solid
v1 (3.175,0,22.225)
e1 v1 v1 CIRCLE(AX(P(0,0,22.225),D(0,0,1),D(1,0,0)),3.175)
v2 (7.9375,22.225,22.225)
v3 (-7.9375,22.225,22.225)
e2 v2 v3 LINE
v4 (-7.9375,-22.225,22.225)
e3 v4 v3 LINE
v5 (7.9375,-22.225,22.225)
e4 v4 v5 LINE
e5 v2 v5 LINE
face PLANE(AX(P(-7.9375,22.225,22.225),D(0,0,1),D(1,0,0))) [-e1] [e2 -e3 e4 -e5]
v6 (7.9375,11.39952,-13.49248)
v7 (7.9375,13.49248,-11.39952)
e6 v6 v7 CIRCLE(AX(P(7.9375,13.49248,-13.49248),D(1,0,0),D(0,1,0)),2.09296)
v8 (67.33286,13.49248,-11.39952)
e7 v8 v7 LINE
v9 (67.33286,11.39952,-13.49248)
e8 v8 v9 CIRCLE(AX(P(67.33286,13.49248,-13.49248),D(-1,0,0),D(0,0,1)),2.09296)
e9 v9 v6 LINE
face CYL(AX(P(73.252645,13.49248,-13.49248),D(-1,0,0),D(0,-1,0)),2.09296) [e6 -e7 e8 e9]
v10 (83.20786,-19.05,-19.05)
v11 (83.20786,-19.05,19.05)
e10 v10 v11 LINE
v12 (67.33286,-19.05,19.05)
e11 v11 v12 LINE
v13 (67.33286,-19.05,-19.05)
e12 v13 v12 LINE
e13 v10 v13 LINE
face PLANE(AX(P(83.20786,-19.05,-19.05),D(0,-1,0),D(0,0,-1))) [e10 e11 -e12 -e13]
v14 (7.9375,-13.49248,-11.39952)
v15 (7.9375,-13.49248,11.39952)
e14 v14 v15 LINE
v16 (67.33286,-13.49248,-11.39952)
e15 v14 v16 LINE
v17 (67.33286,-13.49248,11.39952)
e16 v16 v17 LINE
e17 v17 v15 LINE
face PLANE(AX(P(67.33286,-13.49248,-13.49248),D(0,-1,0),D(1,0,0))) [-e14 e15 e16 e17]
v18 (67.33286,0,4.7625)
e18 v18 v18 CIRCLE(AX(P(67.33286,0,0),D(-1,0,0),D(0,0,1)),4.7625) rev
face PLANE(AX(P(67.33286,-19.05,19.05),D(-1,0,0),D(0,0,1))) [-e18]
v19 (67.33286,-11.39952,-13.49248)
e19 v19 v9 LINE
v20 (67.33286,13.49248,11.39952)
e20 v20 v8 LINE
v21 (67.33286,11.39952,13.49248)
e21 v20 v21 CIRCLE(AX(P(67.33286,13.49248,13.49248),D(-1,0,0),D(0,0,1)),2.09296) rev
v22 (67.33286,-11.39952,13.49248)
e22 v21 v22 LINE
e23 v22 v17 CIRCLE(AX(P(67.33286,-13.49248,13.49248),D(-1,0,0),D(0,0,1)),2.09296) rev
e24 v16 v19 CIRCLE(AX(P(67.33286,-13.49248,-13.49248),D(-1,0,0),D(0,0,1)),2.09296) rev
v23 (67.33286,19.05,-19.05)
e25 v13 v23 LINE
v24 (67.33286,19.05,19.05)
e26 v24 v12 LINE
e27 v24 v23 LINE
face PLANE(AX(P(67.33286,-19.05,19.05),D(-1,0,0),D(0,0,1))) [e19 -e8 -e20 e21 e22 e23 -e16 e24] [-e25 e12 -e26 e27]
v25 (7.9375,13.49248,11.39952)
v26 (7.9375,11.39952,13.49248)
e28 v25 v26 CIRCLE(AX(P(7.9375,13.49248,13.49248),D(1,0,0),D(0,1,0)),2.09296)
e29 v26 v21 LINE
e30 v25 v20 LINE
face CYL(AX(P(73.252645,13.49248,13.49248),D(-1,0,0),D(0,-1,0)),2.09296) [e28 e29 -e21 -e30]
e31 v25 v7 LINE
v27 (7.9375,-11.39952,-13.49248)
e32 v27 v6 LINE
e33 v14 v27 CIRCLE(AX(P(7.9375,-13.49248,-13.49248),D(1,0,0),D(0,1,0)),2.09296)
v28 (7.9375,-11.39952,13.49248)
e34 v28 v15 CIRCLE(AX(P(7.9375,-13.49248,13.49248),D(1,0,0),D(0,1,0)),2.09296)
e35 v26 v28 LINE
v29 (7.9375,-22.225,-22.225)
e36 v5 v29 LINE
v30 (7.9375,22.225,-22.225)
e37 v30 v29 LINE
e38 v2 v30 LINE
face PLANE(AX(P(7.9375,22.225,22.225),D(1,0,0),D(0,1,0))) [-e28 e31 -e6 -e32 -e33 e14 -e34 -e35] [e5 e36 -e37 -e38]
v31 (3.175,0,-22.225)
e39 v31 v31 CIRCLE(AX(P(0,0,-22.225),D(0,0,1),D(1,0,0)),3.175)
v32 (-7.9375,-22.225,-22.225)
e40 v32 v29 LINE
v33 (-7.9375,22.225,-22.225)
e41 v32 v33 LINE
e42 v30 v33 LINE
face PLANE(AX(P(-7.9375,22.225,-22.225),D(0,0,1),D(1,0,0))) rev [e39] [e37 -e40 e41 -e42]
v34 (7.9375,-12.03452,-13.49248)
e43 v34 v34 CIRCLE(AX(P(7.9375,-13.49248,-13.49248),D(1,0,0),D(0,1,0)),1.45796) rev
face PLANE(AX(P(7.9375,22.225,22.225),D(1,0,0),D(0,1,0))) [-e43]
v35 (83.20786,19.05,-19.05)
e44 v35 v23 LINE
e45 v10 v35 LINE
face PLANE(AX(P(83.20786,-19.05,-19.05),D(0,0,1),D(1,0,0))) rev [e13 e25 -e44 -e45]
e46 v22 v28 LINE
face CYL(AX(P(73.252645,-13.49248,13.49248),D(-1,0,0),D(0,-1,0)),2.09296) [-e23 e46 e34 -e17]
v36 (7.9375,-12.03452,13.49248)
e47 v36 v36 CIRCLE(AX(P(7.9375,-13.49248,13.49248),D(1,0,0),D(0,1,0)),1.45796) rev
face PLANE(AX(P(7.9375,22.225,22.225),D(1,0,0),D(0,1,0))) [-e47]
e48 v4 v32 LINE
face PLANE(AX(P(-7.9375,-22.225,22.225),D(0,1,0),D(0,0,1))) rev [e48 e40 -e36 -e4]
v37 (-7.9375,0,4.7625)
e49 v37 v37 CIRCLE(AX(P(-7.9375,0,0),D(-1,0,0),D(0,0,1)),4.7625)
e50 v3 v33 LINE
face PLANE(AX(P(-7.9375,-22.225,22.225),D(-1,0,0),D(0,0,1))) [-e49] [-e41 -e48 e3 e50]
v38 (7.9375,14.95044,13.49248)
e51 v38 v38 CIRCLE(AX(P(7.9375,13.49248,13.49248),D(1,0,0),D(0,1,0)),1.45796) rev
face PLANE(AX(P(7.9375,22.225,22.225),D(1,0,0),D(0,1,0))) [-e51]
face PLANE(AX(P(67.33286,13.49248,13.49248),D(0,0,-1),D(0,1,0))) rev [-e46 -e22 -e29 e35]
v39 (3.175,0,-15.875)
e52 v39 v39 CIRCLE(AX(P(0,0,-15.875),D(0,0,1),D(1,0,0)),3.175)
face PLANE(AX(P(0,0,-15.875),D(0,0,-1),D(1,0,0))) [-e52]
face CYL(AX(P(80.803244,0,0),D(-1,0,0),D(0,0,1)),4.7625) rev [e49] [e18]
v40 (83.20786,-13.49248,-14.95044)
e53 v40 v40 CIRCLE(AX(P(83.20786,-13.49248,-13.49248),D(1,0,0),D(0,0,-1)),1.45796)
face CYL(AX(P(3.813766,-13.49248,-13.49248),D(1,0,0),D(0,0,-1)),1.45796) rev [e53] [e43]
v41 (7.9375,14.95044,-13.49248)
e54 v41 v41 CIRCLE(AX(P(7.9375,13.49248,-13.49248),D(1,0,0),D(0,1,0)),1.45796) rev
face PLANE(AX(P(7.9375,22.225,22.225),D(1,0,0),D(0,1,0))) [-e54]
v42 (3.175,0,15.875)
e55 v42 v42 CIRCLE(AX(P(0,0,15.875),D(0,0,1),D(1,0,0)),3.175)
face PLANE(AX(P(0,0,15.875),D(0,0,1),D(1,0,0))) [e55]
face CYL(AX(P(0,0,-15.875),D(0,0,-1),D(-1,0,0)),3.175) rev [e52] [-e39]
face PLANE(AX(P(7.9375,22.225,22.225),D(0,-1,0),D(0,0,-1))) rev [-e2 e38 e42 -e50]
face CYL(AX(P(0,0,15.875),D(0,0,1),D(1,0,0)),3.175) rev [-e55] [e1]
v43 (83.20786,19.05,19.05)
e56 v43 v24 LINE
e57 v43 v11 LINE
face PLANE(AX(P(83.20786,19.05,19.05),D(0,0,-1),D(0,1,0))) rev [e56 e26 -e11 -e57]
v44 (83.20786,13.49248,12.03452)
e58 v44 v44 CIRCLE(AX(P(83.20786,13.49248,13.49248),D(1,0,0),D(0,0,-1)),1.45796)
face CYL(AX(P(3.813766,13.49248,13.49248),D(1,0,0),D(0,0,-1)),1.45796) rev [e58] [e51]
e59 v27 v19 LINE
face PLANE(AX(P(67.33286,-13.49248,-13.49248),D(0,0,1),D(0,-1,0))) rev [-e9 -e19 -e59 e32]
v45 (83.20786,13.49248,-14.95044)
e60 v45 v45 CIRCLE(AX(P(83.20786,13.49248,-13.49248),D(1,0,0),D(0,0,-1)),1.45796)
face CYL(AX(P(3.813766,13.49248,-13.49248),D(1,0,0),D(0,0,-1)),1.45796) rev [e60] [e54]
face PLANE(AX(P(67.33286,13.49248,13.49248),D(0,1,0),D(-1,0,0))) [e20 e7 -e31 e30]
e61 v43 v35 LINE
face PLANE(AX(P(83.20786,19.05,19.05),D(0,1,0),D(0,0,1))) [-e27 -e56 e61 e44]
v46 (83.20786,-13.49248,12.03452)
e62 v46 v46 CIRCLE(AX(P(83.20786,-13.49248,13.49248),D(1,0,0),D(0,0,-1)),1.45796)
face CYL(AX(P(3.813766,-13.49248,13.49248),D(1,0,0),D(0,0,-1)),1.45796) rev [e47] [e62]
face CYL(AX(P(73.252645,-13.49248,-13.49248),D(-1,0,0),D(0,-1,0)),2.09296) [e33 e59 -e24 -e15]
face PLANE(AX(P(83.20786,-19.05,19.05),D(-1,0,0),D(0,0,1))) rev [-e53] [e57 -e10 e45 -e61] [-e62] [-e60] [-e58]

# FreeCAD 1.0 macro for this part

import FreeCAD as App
import Part
import Sketcher
Q = App.Units.Quantity


def add_polygon(sketch, points):
    """Adds a closed chain of lines whose ends are joined by coincident constraints."""
    first, n = sketch.GeometryCount, len(points)
    for a, b in zip(points, points[1:] + points[:1]):
        sketch.addGeometry(Part.LineSegment(App.Vector(*a, 0), App.Vector(*b, 0)), False)
    for i in range(n):
        sketch.addConstraint(Sketcher.Constraint("Coincident", first + i, 2, first + (i + 1) % n, 1))

doc = App.newDocument("Part")
params = doc.addObject("Spreadsheet::Sheet", "Params")
for row, (alias, value) in enumerate([
    ("sketch1_height", "1.75 in"),
    ("sketch1_width", "0.625 in"),
    ("pad1_length", "1.75 in"),
    ("pad2_length", "2.3384 in"),
    ("sketch3_width", "1.5 in"),
    ("pad3_length", "0.625 in"),
    ("pad4_length", "2.3384 in"),
    ("pocket1_length", "2.9634 in"),
    ("sketch6_diameter", "0.375 in"),
    ("pocket2_length", "2.9634 in"),
    ("sketch7_diameter", "0.25 in"),
    ("pocket3_length", "0.25 in"),
], start=1):
    params.set(f"A{row}", alias)
    params.set(f"B{row}", "=" + value)
    params.setAlias(f"B{row}", alias)

body = doc.addObject("PartDesign::Body", "Body")

sketch1 = body.newObject("Sketcher::SketchObject", "Sketch")
sketch1.AttachmentSupport = (doc.getObject("XY_Plane"), [""])
sketch1.MapMode = "FlatFace"
add_polygon(sketch1, [(-8, 22), (-8, -22), (8, -22), (8, 22)])
sketch1.addConstraint([
    Sketcher.Constraint("Vertical", 0),
    Sketcher.Constraint("Horizontal", 1),
    Sketcher.Constraint("Vertical", 2),
    Sketcher.Constraint("Horizontal", 3),
    Sketcher.Constraint("Symmetric", 0, 2, 2, 2, -1, 1),
    Sketcher.Constraint("DistanceY", 0, 2, 0, 1, Q("1.75 in")),
    Sketcher.Constraint("DistanceX", 1, 1, 1, 2, Q("0.625 in")),
])
sketch1.setExpression("Constraints[9]", "Params.sketch1_height")
sketch1.setExpression("Constraints[10]", "Params.sketch1_width")
pad1 = body.newObject("PartDesign::Pad", "Pad")
pad1.Profile = sketch1
pad1.setExpression("Length", "Params.pad1_length")
pad1.Midplane = True

sketch2 = body.newObject("Sketcher::SketchObject", "Sketch001")
sketch2.AttachmentSupport = (doc.getObject("YZ_Plane"), [""])
sketch2.MapMode = "FlatFace"
sketch2.AttachmentOffset = App.Placement(App.Vector(0, 0, 0.3125 * 25.4), App.Rotation())
add_polygon(sketch2, [(13, 13), (-13, 13), (-13, -13), (13, -13)])
sketch2.addConstraint([
    Sketcher.Constraint("Horizontal", 0),
    Sketcher.Constraint("Vertical", 1),
    Sketcher.Constraint("Horizontal", 2),
    Sketcher.Constraint("Vertical", 3),
    Sketcher.Constraint("Symmetric", 0, 2, 2, 2, -1, 1),
    Sketcher.Constraint("Equal", 2, 1),
    Sketcher.Constraint("DistanceX", 0, 2, 0, 1, Q("1.0624 in")),
])
pad2 = body.newObject("PartDesign::Pad", "Pad001")
pad2.Profile = sketch2
pad2.setExpression("Length", "Params.pad2_length")

sketch3 = body.newObject("Sketcher::SketchObject", "Sketch002")
sketch3.AttachmentSupport = (doc.getObject("YZ_Plane"), [""])
sketch3.MapMode = "FlatFace"
sketch3.AttachmentOffset = App.Placement(App.Vector(0, 0, 2.6509 * 25.4), App.Rotation())
add_polygon(sketch3, [(19, 19), (-19, 19), (-19, -19), (19, -19)])
sketch3.addConstraint([
    Sketcher.Constraint("Horizontal", 0),
    Sketcher.Constraint("Vertical", 1),
    Sketcher.Constraint("Horizontal", 2),
    Sketcher.Constraint("Vertical", 3),
    Sketcher.Constraint("Symmetric", 0, 2, 2, 2, -1, 1),
    Sketcher.Constraint("Equal", 2, 1),
    Sketcher.Constraint("DistanceX", 0, 2, 0, 1, Q("1.5 in")),
])
sketch3.setExpression("Constraints[10]", "Params.sketch3_width")
pad3 = body.newObject("PartDesign::Pad", "Pad002")
pad3.Profile = sketch3
pad3.setExpression("Length", "Params.pad3_length")

sketch4 = body.newObject("Sketcher::SketchObject", "Sketch003")
sketch4.AttachmentSupport = (doc.getObject("YZ_Plane"), [""])
sketch4.MapMode = "FlatFace"
sketch4.AttachmentOffset = App.Placement(App.Vector(0, 0, 0.3125 * 25.4), App.Rotation())
sketch4.addGeometry([
    Part.Circle(App.Vector(13.5, 13.5, 0), App.Vector(0, 0, 1), 2.1),
    Part.Circle(App.Vector(-13.5, 13.5, 0), App.Vector(0, 0, 1), 2.1),
    Part.Circle(App.Vector(13.5, -13.5, 0), App.Vector(0, 0, 1), 2.1),
    Part.Circle(App.Vector(-13.5, -13.5, 0), App.Vector(0, 0, 1), 2.1),
], False)
sketch4.addConstraint([
    Sketcher.Constraint("Equal", 0, 1),
    Sketcher.Constraint("Equal", 1, 2),
    Sketcher.Constraint("Equal", 2, 3),
    Sketcher.Constraint("Symmetric", 1, 3, 2, 3, -1, 1),
    Sketcher.Constraint("Symmetric", 0, 3, 3, 3, -1, 1),
    Sketcher.Constraint("Symmetric", 0, 3, 1, 3, -2),
    Sketcher.Constraint("Diameter", 0, Q("0.1648 in")),
    Sketcher.Constraint("DistanceX", -1, 1, 0, 3, Q("0.5312 in")),
    Sketcher.Constraint("DistanceY", -1, 1, 0, 3, Q("0.5312 in")),
])
pad4 = body.newObject("PartDesign::Pad", "Pad003")
pad4.Profile = sketch4
pad4.setExpression("Length", "Params.pad4_length")

sketch5 = body.newObject("Sketcher::SketchObject", "Sketch004")
sketch5.AttachmentSupport = (doc.getObject("YZ_Plane"), [""])
sketch5.MapMode = "FlatFace"
sketch5.AttachmentOffset = App.Placement(App.Vector(0, 0, 3.2759 * 25.4), App.Rotation())
sketch5.addGeometry([
    Part.Circle(App.Vector(13.5, 13.5, 0), App.Vector(0, 0, 1), 1.5),
    Part.Circle(App.Vector(-13.5, 13.5, 0), App.Vector(0, 0, 1), 1.5),
    Part.Circle(App.Vector(13.5, -13.5, 0), App.Vector(0, 0, 1), 1.5),
    Part.Circle(App.Vector(-13.5, -13.5, 0), App.Vector(0, 0, 1), 1.5),
], False)
sketch5.addConstraint([
    Sketcher.Constraint("Equal", 0, 1),
    Sketcher.Constraint("Equal", 1, 2),
    Sketcher.Constraint("Equal", 2, 3),
    Sketcher.Constraint("Symmetric", 1, 3, 2, 3, -1, 1),
    Sketcher.Constraint("Symmetric", 0, 3, 3, 3, -1, 1),
    Sketcher.Constraint("Symmetric", 0, 3, 1, 3, -2),
    Sketcher.Constraint("Diameter", 0, Q("0.1148 in")),
    Sketcher.Constraint("DistanceX", -1, 1, 0, 3, Q("0.5312 in")),
    Sketcher.Constraint("DistanceY", -1, 1, 0, 3, Q("0.5312 in")),
])
pocket1 = body.newObject("PartDesign::Pocket", "Pocket")
pocket1.Profile = sketch5
pocket1.setExpression("Length", "Params.pocket1_length")

sketch6 = body.newObject("Sketcher::SketchObject", "Sketch005")
sketch6.AttachmentSupport = (doc.getObject("YZ_Plane"), [""])
sketch6.MapMode = "FlatFace"
sketch6.AttachmentOffset = App.Placement(App.Vector(0, 0, -0.3125 * 25.4), App.Rotation())
sketch6.addGeometry(Part.Circle(App.Vector(0, 0, 0), App.Vector(0, 0, 1), 4.8), False)
sketch6.addConstraint([
    Sketcher.Constraint("Coincident", 0, 3, -1, 1),
    Sketcher.Constraint("Diameter", 0, Q("0.375 in")),
])
sketch6.setExpression("Constraints[1]", "Params.sketch6_diameter")
pocket2 = body.newObject("PartDesign::Pocket", "Pocket001")
pocket2.Profile = sketch6
pocket2.setExpression("Length", "Params.pocket2_length")
pocket2.Reversed = True

sketch7 = body.newObject("Sketcher::SketchObject", "Sketch006")
sketch7.AttachmentSupport = (doc.getObject("XY_Plane"), [""])
sketch7.MapMode = "FlatFace"
sketch7.AttachmentOffset = App.Placement(App.Vector(0, 0, 0.875 * 25.4), App.Rotation())
sketch7.addGeometry(Part.Circle(App.Vector(0, 0, 0), App.Vector(0, 0, 1), 3.2), False)
sketch7.addConstraint([
    Sketcher.Constraint("Coincident", 0, 3, -1, 1),
    Sketcher.Constraint("Diameter", 0, Q("0.25 in")),
])
sketch7.setExpression("Constraints[1]", "Params.sketch7_diameter")
pocket3 = body.newObject("PartDesign::Pocket", "Pocket002")
pocket3.Profile = sketch7
pocket3.setExpression("Length", "Params.pocket3_length")
doc.recompute()

mirrored = body.newObject("PartDesign::Mirrored", "Mirrored")
mirrored.Originals = [pocket3]
mirrored.MirrorPlane = (doc.getObject("XY_Plane"), [""])
body.Tip = mirrored

doc.recompute()
